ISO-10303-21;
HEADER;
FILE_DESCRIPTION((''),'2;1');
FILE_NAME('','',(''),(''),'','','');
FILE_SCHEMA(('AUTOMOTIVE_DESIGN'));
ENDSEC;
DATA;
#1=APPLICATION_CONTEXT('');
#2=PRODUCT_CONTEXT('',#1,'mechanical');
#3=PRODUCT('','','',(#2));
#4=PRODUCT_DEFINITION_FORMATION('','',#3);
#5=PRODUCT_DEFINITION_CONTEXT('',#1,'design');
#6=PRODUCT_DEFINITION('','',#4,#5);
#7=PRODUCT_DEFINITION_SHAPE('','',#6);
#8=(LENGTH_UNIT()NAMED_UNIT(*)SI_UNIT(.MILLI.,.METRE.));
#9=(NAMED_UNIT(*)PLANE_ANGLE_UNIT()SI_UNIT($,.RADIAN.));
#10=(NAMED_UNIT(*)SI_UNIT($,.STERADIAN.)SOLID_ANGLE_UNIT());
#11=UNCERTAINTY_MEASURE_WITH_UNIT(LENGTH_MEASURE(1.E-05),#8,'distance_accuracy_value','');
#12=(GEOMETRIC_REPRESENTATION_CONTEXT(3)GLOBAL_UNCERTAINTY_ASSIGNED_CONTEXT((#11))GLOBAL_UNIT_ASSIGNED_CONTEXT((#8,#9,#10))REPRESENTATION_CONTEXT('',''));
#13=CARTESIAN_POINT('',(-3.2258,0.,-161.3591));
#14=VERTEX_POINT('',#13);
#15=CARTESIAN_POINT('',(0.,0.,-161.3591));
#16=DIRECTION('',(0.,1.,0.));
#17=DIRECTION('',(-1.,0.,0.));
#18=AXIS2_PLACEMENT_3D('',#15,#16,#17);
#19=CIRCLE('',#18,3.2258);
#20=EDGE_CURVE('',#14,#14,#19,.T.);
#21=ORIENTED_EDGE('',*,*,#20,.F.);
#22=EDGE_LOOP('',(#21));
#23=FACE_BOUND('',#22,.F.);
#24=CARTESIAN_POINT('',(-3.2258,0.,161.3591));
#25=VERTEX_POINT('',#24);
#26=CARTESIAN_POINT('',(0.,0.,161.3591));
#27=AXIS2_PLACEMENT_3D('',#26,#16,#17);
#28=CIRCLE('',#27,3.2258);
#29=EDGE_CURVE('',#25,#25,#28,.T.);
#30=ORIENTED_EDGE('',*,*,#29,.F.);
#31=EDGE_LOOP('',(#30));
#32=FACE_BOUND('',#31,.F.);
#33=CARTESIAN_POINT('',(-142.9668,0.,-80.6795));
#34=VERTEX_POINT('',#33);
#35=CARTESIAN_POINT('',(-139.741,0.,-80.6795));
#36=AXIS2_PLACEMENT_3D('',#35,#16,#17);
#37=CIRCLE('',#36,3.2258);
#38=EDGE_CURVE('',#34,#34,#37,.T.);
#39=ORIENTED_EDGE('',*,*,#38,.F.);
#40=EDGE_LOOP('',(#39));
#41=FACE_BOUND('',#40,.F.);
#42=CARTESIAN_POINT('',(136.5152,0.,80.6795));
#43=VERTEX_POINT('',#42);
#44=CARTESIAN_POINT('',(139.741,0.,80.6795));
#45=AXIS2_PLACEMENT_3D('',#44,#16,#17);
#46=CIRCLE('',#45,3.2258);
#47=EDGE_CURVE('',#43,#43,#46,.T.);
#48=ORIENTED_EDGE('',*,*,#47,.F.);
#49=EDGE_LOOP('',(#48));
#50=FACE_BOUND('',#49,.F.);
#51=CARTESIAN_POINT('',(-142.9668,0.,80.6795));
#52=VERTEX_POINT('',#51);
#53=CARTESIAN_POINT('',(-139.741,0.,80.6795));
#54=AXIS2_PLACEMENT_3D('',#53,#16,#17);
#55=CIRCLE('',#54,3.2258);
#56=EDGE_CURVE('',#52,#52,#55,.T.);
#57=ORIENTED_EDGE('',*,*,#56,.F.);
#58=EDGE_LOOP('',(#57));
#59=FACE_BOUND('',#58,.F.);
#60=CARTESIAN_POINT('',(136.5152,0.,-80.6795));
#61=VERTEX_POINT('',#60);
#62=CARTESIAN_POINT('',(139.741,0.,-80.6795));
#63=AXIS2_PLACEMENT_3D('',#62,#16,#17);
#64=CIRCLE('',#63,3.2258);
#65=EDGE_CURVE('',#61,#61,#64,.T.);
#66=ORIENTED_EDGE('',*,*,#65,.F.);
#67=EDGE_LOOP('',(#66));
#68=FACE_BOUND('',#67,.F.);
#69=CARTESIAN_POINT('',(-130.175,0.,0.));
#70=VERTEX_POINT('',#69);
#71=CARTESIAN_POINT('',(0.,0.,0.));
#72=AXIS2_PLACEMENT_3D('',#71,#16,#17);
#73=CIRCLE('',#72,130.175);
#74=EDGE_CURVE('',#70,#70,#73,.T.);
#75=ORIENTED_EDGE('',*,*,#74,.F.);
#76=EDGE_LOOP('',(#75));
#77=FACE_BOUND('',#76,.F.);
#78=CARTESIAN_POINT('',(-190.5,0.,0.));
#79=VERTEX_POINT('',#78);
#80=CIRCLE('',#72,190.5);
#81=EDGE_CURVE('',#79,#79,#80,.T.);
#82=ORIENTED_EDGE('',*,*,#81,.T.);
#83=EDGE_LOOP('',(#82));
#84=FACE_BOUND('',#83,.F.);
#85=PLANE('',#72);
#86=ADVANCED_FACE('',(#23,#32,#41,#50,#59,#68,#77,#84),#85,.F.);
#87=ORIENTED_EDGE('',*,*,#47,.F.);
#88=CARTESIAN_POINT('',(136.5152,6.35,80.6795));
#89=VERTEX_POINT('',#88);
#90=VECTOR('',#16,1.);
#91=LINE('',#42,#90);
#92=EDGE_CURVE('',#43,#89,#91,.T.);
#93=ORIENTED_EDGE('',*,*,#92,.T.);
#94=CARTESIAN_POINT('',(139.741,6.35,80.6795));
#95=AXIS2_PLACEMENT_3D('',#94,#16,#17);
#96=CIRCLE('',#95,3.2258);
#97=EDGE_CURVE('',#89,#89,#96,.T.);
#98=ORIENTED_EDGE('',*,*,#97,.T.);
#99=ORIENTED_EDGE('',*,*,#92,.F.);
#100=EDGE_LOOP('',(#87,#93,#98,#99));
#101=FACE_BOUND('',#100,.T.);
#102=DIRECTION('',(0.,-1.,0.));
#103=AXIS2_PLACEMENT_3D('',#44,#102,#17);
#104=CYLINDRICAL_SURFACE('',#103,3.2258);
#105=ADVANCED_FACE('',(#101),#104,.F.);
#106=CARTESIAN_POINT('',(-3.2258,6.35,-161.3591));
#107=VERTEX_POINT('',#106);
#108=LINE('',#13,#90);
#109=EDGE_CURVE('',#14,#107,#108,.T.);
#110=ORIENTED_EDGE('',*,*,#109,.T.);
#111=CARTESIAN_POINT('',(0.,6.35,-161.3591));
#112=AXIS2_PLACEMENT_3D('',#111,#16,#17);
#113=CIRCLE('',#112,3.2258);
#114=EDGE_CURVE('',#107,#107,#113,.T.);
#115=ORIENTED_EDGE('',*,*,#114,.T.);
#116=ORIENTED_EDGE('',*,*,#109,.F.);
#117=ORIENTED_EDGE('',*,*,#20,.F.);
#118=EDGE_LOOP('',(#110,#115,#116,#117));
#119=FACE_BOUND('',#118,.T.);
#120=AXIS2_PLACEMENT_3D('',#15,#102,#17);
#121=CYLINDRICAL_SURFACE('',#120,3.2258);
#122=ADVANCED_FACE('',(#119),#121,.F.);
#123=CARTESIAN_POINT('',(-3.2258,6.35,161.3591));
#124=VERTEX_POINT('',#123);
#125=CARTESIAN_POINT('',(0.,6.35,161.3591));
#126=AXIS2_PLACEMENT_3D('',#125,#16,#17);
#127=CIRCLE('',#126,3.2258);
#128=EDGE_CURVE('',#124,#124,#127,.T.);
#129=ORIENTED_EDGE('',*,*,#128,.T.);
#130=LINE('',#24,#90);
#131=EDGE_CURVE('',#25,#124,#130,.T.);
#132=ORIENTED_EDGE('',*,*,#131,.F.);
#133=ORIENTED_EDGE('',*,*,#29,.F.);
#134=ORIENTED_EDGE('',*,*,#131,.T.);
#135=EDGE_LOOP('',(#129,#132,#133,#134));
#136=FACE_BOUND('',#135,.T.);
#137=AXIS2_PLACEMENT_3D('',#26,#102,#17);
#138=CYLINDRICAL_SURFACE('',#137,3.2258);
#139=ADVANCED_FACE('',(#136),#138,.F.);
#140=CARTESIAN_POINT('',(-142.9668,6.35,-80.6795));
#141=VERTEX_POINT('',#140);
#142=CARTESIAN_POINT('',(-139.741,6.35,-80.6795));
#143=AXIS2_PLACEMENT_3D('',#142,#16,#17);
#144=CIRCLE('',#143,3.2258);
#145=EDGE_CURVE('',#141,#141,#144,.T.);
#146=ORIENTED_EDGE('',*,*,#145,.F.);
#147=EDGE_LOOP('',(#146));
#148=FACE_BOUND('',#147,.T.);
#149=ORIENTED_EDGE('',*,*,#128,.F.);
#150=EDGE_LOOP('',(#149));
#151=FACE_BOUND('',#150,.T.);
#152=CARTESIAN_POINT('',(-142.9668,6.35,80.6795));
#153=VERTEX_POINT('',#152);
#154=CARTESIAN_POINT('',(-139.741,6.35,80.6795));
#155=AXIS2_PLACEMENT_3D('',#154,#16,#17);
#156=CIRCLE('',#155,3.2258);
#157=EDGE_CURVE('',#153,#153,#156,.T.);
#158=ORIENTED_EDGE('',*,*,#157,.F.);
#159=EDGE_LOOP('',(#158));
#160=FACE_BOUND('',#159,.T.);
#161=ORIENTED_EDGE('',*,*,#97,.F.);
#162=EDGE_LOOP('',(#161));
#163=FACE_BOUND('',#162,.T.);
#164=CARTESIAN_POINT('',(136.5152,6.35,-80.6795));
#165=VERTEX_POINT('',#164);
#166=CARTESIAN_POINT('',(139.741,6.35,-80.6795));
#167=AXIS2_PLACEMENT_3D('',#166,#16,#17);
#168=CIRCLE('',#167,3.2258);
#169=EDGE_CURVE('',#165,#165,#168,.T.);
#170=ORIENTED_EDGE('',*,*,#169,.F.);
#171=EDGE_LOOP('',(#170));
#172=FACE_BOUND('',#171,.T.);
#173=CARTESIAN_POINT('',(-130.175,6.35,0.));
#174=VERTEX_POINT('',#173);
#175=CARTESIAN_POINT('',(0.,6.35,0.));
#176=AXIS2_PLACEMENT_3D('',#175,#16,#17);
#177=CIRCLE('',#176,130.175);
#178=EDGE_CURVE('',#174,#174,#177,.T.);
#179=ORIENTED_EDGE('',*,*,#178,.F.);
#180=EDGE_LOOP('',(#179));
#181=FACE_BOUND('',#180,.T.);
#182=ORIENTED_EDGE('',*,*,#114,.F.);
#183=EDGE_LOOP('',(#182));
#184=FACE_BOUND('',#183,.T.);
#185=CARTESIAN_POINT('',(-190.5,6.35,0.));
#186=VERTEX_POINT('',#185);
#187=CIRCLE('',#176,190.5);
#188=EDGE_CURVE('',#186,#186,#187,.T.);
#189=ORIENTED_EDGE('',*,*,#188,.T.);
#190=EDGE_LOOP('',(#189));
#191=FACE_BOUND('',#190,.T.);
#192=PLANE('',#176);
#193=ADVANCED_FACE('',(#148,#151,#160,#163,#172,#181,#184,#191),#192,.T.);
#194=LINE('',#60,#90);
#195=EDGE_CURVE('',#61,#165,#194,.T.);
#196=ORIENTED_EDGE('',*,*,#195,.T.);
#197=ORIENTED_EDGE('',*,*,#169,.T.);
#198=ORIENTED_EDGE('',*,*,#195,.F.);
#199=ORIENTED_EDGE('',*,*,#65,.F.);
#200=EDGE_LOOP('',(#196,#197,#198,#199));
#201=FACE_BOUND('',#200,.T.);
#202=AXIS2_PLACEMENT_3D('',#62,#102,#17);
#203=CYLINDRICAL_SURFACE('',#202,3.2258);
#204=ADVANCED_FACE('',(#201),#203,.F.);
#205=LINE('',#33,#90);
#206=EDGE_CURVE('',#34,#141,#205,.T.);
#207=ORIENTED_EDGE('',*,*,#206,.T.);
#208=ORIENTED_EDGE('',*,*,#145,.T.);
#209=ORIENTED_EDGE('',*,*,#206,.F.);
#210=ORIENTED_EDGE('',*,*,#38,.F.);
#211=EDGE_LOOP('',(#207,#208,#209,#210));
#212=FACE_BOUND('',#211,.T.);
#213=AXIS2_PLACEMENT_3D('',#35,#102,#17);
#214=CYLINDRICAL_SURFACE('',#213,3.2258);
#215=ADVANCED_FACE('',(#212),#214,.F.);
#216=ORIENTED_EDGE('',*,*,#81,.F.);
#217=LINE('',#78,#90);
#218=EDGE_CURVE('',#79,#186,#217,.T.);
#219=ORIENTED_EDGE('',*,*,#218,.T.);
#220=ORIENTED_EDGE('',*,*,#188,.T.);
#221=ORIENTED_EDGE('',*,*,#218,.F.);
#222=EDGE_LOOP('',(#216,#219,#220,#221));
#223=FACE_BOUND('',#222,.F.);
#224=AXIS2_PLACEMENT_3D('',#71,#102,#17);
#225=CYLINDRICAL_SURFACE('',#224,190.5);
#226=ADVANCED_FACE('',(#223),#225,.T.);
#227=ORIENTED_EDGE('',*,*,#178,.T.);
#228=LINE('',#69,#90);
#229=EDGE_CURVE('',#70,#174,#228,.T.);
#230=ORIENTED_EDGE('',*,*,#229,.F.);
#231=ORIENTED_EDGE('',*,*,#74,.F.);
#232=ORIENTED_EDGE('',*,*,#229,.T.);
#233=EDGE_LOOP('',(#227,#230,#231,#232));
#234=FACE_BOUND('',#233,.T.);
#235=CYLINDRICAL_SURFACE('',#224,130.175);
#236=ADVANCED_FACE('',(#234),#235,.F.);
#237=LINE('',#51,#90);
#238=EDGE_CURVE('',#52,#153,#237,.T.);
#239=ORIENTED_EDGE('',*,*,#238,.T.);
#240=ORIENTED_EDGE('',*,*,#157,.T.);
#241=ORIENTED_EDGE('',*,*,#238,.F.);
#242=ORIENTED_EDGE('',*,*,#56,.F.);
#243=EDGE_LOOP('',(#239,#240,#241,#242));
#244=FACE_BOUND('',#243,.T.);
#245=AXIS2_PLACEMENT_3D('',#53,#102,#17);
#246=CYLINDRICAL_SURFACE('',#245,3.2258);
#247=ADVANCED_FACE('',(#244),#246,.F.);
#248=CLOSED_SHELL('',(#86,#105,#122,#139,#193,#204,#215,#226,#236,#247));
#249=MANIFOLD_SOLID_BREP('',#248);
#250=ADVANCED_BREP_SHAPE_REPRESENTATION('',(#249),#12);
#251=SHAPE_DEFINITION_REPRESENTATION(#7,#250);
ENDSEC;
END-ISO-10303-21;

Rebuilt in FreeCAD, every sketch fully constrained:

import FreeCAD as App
import Part
import Sketcher

V = App.Vector
Q = App.Units.Quantity

doc = App.newDocument("Part")
params = doc.addObject("Spreadsheet::Sheet", "Params")
for row, (alias, value) in enumerate([
    ("sketch1_diameter", "15 in"),
    ("sketch1_diameter2", "10.25 in"),
    ("sketch1_diameter3", "0.254 in"),
    ("pad1_length", "0.25 in"),
], start=1):
    params.set(f"A{row}", alias)
    params.set(f"B{row}", "=" + value)
    params.setAlias(f"B{row}", alias)

body = doc.addObject("PartDesign::Body", "Body")

sketch1 = body.newObject("Sketcher::SketchObject", "Sketch")
sketch1.AttachmentSupport = (doc.getObject("XZ_Plane"), [""])
sketch1.MapMode = "FlatFace"
sketch1.addGeometry([
    Part.Circle(V(0, 0, 0), V(0, 0, 1), 190.5),
    Part.Circle(V(139.7, -80.7, 0), V(0, 0, 1), 3.2),
    Part.Circle(V(0, -161.4, 0), V(0, 0, 1), 3.2),
    Part.Circle(V(-139.7, -80.7, 0), V(0, 0, 1), 3.2),
    Part.Circle(V(139.7, 80.7, 0), V(0, 0, 1), 3.2),
    Part.Circle(V(0, 0, 0), V(0, 0, 1), 130.2),
    Part.Circle(V(-139.7, 80.7, 0), V(0, 0, 1), 3.2),
    Part.Circle(V(0, 161.4, 0), V(0, 0, 1), 3.2),
], False)
sketch1.addConstraint([
    Sketcher.Constraint("Coincident", 0, 3, -1, 1),
    Sketcher.Constraint("Coincident", 5, 3, -1, 1),
    Sketcher.Constraint("Equal", 1, 2),
    Sketcher.Constraint("Equal", 2, 3),
    Sketcher.Constraint("Equal", 3, 4),
    Sketcher.Constraint("Equal", 4, 6),
    Sketcher.Constraint("Equal", 6, 7),
    Sketcher.Constraint("Symmetric", 3, 3, 4, 3, -1, 1),
    Sketcher.Constraint("Symmetric", 1, 3, 6, 3, -1, 1),
    Sketcher.Constraint("Symmetric", 2, 3, 7, 3, -1, 1),
    Sketcher.Constraint("Symmetric", 1, 3, 3, 3, -2),
    Sketcher.Constraint("PointOnObject", 2, 3, -2),
    Sketcher.Constraint("Diameter", 0, Q("15 in")),
    Sketcher.Constraint("Diameter", 5, Q("10.25 in")),
    Sketcher.Constraint("Diameter", 1, Q("0.254 in")),
    Sketcher.Constraint("DistanceX", -1, 1, 1, 3, Q("139.741 mm")),
    Sketcher.Constraint("DistanceY", 1, 3, -1, 1, Q("80.6795 mm")),
    Sketcher.Constraint("DistanceY", 2, 3, -1, 1, Q("161.359 mm")),
])
sketch1.setExpression("Constraints[12]", "Params.sketch1_diameter")
sketch1.setExpression("Constraints[13]", "Params.sketch1_diameter2")
sketch1.setExpression("Constraints[14]", "Params.sketch1_diameter3")
pad1 = body.newObject("PartDesign::Pad", "Pad")
pad1.Profile = sketch1
pad1.setExpression("Length", "Params.pad1_length")
pad1.Reversed = True

doc.recompute()
